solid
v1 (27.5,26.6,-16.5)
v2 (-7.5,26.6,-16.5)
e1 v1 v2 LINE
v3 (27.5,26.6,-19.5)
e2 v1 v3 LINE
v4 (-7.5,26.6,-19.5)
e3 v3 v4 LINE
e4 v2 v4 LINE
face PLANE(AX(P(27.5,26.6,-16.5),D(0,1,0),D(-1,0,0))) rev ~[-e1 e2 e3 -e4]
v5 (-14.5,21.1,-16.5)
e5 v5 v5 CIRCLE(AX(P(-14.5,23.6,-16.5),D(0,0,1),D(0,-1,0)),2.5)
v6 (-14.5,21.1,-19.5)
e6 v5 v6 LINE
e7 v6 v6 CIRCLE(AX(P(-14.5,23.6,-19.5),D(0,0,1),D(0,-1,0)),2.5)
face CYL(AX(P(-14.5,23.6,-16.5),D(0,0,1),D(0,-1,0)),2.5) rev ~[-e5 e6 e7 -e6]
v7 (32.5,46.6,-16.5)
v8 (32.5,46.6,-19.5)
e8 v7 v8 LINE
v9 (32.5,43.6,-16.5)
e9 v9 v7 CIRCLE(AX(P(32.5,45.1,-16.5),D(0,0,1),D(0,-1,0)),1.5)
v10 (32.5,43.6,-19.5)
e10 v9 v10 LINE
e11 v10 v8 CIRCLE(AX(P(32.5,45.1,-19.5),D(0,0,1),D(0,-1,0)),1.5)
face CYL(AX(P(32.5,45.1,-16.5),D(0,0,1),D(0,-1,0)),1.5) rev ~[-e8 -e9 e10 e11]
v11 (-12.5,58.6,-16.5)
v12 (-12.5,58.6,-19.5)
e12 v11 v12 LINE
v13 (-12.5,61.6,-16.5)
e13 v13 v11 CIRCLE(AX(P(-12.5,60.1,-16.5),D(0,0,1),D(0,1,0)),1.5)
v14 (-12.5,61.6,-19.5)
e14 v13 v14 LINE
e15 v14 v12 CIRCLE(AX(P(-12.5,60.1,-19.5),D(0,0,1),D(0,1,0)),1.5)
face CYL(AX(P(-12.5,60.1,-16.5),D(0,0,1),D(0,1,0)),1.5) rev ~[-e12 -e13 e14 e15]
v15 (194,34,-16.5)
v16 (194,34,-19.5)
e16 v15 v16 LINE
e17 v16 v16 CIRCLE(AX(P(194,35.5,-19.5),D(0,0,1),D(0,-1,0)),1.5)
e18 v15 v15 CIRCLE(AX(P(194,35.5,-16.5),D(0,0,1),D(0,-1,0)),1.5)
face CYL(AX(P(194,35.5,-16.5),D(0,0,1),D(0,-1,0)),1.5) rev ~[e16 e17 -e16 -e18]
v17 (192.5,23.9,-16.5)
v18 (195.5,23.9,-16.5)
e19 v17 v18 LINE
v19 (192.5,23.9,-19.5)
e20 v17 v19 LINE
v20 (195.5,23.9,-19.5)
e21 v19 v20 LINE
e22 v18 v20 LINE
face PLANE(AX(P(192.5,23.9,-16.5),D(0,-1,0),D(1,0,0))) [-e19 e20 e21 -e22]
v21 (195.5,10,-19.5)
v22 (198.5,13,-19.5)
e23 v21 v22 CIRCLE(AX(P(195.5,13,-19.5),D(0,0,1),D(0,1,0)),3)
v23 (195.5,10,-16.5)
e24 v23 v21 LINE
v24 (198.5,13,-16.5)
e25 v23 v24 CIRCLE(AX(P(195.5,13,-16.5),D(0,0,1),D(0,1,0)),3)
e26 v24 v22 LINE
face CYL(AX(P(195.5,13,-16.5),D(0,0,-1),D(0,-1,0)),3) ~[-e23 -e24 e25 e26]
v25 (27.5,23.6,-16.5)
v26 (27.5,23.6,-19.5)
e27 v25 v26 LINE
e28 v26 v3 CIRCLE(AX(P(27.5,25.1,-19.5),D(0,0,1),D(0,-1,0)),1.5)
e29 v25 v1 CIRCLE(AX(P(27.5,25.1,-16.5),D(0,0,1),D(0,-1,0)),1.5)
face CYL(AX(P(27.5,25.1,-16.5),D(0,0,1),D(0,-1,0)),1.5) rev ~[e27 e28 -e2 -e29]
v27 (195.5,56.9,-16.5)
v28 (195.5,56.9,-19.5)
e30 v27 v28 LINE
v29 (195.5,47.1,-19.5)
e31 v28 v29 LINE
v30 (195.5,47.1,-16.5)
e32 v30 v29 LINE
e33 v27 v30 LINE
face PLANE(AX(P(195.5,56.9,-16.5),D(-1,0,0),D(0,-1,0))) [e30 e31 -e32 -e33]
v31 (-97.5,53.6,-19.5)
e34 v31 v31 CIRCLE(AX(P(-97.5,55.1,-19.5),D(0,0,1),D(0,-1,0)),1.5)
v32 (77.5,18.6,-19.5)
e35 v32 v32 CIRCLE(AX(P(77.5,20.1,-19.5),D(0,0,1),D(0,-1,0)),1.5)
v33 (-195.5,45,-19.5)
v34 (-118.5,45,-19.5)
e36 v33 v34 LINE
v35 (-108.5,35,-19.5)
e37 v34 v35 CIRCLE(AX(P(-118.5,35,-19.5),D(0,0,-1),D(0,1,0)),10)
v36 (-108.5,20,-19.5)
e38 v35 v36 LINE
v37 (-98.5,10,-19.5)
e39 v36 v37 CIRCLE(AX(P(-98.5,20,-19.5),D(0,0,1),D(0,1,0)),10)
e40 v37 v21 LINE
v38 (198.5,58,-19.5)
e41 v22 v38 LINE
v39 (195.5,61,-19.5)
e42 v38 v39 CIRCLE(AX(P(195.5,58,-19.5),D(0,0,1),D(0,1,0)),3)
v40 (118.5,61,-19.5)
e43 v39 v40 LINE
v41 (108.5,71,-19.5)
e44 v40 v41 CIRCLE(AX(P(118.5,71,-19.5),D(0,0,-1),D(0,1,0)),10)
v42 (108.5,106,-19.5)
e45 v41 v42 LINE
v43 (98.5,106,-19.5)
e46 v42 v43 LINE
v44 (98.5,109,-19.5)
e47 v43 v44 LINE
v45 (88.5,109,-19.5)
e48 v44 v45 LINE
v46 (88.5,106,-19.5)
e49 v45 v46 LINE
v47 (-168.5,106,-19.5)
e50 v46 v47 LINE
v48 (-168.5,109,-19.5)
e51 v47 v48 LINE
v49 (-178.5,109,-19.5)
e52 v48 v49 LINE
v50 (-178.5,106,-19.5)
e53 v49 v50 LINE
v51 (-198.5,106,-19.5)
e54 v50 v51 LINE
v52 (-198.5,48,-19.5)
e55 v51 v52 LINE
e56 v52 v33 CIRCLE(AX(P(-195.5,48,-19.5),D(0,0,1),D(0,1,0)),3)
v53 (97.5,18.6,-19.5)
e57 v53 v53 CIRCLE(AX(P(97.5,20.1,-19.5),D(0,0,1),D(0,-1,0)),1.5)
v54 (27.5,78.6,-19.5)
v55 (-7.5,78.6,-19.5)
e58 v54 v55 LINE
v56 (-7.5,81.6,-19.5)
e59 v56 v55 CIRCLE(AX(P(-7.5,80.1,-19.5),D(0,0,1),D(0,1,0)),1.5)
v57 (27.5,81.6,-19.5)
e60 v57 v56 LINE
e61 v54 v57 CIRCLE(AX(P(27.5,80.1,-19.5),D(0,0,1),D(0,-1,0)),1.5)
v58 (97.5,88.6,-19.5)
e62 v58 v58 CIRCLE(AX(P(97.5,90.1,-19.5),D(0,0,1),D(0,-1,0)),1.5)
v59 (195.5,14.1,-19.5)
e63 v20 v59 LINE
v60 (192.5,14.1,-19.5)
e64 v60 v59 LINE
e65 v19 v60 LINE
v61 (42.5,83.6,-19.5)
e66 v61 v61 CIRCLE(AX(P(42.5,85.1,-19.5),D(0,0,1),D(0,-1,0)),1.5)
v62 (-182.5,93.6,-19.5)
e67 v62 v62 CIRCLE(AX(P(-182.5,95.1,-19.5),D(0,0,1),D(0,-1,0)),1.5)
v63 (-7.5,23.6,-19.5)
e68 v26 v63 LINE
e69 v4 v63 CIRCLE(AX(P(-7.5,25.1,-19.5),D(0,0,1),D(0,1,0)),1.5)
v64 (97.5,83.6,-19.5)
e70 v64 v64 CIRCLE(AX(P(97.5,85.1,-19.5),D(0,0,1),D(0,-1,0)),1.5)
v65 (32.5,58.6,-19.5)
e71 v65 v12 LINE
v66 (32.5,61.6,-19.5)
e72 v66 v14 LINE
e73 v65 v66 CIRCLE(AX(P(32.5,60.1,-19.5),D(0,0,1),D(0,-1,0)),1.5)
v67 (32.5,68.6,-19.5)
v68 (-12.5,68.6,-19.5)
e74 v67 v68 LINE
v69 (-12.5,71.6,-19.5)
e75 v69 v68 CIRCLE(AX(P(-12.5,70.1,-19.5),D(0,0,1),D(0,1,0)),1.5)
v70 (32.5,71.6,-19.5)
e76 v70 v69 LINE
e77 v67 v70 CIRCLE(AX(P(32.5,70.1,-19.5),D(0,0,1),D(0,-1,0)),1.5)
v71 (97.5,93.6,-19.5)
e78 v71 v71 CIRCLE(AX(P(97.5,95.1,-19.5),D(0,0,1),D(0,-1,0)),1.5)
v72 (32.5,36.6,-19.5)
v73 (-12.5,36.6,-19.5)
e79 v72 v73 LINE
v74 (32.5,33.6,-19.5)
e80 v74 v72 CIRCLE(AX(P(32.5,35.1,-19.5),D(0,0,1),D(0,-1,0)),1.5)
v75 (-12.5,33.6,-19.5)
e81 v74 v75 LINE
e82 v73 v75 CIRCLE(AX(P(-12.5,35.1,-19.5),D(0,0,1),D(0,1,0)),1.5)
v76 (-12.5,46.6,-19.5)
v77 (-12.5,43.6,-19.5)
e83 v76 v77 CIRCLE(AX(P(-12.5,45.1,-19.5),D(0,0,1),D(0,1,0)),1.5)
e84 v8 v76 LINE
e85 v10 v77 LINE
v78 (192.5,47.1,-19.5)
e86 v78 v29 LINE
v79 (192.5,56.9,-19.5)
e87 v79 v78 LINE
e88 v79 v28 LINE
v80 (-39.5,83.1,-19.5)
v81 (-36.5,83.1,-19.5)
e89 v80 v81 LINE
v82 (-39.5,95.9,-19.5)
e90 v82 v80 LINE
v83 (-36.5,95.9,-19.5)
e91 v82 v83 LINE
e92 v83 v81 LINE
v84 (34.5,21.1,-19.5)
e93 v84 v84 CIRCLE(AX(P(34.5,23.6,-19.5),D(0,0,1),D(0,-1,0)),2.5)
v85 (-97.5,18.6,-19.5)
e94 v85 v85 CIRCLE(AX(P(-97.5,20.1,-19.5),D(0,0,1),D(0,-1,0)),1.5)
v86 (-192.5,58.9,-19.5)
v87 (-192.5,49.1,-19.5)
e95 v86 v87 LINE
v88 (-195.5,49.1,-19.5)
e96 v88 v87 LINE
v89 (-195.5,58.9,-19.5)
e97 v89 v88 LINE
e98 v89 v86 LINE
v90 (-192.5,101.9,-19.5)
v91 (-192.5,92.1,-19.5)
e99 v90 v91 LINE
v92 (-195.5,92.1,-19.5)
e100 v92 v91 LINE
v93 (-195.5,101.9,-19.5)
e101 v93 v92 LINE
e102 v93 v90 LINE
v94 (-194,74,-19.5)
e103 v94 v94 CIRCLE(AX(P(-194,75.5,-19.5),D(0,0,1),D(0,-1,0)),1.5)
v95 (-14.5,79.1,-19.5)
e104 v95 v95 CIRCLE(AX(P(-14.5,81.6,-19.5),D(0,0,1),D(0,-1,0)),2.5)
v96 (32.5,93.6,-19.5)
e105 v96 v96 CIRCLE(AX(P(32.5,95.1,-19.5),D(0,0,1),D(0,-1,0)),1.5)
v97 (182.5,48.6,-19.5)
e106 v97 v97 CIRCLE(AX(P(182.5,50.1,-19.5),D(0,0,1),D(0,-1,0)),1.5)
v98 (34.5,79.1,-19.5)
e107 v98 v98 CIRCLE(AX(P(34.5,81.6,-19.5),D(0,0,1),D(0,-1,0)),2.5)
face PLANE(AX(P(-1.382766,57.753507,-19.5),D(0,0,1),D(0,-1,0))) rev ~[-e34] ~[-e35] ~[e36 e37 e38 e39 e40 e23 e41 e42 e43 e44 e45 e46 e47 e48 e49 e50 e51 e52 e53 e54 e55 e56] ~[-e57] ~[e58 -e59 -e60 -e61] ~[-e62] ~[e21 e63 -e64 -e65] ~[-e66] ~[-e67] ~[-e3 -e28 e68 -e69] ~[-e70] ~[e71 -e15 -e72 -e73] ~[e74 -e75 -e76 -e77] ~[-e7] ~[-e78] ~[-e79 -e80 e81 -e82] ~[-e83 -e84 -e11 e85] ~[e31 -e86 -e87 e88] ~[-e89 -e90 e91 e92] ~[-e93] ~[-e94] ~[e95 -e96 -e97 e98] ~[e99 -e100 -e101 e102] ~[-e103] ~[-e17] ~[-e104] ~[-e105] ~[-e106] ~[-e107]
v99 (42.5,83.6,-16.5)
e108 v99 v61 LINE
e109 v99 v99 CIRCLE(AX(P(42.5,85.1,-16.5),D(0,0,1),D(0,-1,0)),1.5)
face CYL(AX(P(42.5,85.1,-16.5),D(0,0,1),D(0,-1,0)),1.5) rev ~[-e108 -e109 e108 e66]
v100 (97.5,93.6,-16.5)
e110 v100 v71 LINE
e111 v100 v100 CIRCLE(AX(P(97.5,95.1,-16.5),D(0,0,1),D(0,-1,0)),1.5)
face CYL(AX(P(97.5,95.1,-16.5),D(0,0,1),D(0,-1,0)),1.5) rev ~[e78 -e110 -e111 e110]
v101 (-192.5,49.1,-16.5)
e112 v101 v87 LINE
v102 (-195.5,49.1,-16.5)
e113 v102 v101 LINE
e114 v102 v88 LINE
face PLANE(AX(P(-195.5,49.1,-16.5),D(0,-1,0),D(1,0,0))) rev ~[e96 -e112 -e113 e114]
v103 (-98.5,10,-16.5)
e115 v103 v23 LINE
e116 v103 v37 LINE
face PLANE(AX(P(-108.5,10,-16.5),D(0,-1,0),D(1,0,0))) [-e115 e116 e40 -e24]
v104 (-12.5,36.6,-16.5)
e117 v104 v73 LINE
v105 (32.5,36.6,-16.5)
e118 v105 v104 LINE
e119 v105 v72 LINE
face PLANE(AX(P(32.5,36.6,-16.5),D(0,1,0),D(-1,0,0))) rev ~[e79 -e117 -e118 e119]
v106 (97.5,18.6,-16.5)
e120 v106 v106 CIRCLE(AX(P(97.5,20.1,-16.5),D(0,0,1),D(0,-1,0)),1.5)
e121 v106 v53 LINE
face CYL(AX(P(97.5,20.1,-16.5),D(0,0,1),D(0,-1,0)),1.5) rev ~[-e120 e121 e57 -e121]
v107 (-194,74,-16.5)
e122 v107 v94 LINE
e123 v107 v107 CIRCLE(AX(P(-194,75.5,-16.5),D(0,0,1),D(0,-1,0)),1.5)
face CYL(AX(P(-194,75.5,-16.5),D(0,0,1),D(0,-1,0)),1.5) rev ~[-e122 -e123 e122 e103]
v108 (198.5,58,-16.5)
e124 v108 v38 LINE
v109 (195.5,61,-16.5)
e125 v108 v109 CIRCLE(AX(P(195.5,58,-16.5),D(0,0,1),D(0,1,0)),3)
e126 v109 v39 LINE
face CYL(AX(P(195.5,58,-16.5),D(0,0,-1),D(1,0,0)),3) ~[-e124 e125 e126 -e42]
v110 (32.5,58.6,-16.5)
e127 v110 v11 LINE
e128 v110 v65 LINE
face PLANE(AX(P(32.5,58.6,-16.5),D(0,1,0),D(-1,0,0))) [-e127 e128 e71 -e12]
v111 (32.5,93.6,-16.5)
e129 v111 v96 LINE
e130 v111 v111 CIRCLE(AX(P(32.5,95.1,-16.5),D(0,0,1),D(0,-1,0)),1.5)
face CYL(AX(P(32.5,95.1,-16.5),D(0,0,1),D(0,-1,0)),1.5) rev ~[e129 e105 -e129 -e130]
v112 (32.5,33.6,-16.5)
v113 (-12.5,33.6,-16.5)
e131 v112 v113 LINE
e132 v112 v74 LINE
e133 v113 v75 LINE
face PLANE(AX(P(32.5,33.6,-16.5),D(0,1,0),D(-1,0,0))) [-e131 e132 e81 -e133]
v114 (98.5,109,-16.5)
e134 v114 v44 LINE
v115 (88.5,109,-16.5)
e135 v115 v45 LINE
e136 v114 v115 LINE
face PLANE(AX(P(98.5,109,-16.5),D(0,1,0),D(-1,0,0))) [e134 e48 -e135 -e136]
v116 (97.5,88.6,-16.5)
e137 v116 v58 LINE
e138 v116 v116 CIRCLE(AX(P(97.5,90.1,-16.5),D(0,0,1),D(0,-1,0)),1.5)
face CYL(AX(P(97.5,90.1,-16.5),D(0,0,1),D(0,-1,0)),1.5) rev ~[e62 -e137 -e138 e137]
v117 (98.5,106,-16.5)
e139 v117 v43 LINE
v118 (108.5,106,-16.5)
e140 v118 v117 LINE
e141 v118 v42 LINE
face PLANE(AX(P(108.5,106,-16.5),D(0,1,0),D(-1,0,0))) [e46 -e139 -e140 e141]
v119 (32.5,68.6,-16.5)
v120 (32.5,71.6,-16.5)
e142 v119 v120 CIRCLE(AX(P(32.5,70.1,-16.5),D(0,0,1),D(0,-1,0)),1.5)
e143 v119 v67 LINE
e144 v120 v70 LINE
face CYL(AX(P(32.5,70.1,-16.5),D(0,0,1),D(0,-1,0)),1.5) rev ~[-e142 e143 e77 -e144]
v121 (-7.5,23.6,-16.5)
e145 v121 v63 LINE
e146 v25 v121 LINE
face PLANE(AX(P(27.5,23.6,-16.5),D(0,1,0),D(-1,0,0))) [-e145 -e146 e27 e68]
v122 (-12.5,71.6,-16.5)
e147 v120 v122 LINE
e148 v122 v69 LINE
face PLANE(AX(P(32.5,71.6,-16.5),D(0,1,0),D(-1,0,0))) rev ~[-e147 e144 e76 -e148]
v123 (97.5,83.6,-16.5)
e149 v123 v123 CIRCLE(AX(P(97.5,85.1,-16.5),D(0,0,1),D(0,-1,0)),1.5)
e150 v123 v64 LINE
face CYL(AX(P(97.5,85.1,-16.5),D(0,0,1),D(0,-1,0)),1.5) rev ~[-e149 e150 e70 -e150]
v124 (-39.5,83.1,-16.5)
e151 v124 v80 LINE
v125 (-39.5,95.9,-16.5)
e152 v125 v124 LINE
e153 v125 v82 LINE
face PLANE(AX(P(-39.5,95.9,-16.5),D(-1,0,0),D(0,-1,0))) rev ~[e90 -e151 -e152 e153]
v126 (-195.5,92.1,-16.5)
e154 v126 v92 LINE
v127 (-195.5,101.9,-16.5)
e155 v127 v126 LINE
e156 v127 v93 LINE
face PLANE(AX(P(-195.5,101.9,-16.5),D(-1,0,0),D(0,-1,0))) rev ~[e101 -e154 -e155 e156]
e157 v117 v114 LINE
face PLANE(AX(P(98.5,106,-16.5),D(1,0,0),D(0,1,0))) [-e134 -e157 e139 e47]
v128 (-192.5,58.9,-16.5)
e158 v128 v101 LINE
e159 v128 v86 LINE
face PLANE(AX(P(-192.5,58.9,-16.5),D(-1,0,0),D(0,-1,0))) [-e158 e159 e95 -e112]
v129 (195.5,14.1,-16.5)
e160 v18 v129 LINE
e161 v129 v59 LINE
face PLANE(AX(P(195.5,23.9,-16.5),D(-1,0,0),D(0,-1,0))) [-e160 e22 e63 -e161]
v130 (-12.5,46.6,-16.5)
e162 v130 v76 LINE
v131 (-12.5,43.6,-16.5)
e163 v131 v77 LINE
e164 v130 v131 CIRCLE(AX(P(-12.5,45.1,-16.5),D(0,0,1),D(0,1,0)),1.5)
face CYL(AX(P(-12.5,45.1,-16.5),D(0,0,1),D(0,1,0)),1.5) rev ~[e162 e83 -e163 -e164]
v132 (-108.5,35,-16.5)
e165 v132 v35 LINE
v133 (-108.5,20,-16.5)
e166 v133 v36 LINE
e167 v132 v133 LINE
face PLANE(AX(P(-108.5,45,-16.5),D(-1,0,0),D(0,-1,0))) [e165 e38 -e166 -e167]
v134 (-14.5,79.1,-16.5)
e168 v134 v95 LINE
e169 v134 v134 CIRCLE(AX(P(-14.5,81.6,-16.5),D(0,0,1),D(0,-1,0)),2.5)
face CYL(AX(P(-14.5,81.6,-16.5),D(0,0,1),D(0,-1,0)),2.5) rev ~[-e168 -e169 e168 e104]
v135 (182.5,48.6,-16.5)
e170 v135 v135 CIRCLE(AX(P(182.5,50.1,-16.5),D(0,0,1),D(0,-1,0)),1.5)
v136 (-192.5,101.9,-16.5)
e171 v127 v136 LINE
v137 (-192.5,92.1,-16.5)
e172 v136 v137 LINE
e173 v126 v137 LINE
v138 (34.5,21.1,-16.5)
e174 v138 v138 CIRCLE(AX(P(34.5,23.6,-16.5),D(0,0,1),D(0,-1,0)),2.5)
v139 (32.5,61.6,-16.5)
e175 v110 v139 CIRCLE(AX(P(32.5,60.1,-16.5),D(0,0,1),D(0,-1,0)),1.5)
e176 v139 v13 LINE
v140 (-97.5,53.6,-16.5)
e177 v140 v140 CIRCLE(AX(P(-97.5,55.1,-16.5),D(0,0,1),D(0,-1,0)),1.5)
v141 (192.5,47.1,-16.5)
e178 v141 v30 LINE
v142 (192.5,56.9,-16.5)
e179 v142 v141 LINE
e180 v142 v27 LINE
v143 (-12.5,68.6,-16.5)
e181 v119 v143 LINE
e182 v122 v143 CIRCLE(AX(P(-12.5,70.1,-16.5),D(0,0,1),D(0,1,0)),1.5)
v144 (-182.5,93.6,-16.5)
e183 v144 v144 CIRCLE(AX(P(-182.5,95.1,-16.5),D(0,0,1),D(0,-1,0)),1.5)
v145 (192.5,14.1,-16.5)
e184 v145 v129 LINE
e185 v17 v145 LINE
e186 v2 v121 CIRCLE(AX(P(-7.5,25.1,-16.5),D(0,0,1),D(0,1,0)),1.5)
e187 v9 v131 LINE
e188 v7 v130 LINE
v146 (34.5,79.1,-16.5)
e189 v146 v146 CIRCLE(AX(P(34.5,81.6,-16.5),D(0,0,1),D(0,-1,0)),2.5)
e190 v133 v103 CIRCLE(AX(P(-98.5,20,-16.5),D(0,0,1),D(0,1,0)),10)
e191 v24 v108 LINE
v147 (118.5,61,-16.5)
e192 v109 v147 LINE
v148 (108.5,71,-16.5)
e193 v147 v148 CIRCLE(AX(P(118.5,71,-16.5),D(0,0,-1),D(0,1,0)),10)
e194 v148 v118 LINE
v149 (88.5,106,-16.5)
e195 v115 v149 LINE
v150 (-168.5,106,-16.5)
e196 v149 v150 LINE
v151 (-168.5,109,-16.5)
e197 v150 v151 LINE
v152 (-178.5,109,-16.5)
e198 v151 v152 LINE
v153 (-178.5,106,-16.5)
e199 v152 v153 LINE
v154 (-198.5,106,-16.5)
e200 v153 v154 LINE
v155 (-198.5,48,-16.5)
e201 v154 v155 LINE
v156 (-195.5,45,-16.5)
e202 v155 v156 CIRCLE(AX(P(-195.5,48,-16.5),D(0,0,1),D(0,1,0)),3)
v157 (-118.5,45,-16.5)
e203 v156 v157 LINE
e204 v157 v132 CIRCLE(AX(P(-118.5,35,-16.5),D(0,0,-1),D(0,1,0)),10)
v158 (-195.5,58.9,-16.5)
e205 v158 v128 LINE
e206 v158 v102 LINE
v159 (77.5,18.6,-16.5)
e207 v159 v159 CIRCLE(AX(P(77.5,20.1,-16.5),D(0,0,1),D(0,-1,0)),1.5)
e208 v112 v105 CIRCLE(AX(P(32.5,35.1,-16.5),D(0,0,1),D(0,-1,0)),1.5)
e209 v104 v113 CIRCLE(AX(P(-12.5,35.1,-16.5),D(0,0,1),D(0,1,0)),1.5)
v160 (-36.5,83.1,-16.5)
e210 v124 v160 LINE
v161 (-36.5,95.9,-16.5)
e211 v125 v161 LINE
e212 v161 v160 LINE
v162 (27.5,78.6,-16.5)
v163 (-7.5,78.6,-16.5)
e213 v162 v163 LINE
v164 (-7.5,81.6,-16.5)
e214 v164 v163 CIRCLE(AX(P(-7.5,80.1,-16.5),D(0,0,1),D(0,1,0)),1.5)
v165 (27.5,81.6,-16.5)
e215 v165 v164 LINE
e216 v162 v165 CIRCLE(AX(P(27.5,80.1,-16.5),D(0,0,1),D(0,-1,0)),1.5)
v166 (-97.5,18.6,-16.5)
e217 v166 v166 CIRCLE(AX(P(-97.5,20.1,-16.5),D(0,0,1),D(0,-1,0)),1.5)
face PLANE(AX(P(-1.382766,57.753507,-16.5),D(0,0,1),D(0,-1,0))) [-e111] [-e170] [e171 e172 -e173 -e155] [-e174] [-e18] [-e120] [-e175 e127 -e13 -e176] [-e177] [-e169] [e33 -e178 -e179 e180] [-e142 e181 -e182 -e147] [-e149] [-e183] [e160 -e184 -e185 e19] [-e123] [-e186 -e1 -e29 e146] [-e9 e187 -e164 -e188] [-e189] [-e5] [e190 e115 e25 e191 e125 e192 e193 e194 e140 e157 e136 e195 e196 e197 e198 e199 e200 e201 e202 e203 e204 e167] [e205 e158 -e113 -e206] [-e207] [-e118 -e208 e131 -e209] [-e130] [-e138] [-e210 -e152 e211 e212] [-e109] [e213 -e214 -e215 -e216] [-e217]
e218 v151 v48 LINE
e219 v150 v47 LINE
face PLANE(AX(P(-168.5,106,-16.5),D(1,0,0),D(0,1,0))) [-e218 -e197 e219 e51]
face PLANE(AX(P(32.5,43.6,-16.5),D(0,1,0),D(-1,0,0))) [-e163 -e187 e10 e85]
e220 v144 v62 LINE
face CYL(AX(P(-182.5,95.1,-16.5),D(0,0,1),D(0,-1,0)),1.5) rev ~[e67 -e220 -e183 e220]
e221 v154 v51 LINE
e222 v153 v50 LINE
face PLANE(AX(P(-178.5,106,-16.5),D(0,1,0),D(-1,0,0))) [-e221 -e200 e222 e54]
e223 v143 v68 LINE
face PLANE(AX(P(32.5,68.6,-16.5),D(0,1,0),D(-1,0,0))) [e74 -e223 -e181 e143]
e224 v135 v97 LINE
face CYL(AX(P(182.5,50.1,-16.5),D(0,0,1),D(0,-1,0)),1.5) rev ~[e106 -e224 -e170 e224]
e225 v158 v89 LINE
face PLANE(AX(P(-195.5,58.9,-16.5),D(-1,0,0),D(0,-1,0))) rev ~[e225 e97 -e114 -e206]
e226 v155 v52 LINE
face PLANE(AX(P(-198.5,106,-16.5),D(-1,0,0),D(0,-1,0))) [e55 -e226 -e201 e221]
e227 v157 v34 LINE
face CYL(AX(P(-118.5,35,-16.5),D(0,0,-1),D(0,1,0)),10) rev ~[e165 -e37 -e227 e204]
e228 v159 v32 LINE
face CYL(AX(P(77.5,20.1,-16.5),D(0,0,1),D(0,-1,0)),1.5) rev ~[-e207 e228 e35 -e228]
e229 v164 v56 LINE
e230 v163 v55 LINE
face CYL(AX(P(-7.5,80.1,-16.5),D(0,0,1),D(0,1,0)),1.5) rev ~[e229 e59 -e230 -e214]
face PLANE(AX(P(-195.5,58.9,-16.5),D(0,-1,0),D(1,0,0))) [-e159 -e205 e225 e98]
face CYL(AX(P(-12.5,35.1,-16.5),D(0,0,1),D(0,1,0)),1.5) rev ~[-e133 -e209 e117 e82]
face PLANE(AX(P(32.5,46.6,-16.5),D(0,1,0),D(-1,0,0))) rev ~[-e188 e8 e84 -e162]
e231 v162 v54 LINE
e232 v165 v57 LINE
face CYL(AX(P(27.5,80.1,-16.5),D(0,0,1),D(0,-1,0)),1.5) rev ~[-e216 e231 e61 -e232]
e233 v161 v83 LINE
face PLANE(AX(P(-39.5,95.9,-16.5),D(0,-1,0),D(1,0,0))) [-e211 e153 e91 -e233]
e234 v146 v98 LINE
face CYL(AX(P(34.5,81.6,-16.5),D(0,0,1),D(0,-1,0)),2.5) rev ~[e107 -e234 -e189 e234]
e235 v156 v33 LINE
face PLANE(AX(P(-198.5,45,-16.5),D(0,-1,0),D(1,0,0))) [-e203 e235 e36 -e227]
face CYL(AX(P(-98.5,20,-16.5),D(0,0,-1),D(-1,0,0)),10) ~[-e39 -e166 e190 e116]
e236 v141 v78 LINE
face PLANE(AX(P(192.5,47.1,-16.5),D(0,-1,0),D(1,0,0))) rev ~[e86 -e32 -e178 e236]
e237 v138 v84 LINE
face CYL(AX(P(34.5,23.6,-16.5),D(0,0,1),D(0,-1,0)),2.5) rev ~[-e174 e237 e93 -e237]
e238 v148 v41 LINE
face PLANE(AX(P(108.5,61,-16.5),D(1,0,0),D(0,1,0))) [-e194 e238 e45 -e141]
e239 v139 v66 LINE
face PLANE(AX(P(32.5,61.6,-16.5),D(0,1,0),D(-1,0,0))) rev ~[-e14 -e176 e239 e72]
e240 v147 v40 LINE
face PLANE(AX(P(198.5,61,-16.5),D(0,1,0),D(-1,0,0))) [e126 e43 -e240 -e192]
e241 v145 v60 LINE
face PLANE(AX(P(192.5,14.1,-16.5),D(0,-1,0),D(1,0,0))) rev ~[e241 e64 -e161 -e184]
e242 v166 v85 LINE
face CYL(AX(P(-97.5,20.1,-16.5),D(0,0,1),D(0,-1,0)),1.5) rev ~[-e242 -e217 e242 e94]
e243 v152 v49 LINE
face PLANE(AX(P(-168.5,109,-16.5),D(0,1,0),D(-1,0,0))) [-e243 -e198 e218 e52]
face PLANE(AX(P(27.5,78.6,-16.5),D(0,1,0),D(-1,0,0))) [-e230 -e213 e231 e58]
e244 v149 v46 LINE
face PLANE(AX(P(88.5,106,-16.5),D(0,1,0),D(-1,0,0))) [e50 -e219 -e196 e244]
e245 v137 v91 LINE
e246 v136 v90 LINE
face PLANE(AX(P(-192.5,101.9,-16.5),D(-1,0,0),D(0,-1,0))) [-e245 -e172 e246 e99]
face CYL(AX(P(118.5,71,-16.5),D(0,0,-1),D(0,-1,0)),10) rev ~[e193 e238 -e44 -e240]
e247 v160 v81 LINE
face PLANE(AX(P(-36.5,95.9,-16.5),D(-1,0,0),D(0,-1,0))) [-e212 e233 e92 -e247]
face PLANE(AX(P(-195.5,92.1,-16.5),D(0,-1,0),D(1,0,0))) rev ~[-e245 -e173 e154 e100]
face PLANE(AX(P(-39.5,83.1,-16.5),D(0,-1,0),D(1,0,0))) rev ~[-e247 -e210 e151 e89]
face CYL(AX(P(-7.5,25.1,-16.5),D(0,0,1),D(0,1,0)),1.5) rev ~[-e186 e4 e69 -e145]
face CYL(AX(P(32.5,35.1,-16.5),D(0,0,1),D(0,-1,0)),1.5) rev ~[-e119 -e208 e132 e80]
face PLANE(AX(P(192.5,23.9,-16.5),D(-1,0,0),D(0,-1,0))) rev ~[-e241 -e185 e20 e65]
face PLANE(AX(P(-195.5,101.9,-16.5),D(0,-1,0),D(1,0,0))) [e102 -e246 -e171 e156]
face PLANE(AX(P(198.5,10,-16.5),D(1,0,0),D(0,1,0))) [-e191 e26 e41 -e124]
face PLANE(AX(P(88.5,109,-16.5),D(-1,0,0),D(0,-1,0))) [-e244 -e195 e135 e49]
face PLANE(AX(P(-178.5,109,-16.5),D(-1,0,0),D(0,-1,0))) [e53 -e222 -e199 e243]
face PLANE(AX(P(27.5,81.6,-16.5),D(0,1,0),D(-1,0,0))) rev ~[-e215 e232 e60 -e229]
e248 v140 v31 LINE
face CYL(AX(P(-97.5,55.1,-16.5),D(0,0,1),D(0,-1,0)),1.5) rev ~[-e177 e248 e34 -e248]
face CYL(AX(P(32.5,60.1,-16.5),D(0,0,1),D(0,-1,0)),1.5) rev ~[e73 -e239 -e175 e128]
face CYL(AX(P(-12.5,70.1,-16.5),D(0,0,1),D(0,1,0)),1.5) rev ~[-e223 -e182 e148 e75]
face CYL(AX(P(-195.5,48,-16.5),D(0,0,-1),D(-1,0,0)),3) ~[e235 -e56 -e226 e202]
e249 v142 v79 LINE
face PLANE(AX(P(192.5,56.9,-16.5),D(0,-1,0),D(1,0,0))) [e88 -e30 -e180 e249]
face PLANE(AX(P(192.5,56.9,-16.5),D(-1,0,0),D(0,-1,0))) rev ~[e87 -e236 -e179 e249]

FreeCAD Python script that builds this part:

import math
import FreeCAD as App
import Part
import Sketcher
from FreeCAD import Vector
Q = App.Units.Quantity


def edges_at(feature, points):
    """Names of the edges that pass closest to the given points."""
    edges = feature.Shape.Edges
    near = lambda p: min(range(len(edges)), key=lambda i: edges[i].distToShape(Part.Vertex(*p))[0])
    return sorted({f"Edge{near(p) + 1}" for p in points})

doc = App.newDocument("Part")
body = doc.addObject("PartDesign::Body", "Body")

sketch1 = body.newObject("Sketcher::SketchObject", "Sketch")
sketch1.AttachmentSupport = (doc.getObject("XY_Plane"), [""])
sketch1.MapMode = "FlatFace"
sketch1.AttachmentOffset = App.Placement(Vector(0, 0, -16.5), App.Rotation())
sketch1.addGeometry(Part.LineSegment(Vector(-198.5, 106, 0), Vector(-198.5, 45, 0)), False)
sketch1.addGeometry(Part.LineSegment(Vector(-198.5, 45, 0), Vector(-108.5, 45, 0)), False)
sketch1.addGeometry(Part.LineSegment(Vector(-108.5, 45, 0), Vector(-108.5, 10, 0)), False)
sketch1.addGeometry(Part.LineSegment(Vector(-108.5, 10, 0), Vector(198.5, 10, 0)), False)
sketch1.addGeometry(Part.LineSegment(Vector(198.5, 10, 0), Vector(198.5, 61, 0)), False)
sketch1.addGeometry(Part.LineSegment(Vector(198.5, 61, 0), Vector(108.5, 61, 0)), False)
sketch1.addGeometry(Part.LineSegment(Vector(108.5, 61, 0), Vector(108.5, 106, 0)), False)
sketch1.addGeometry(Part.LineSegment(Vector(108.5, 106, 0), Vector(98.5, 106, 0)), False)
sketch1.addGeometry(Part.LineSegment(Vector(98.5, 106, 0), Vector(98.5, 109, 0)), False)
sketch1.addGeometry(Part.LineSegment(Vector(98.5, 109, 0), Vector(88.5, 109, 0)), False)
sketch1.addGeometry(Part.LineSegment(Vector(88.5, 109, 0), Vector(88.5, 106, 0)), False)
sketch1.addGeometry(Part.LineSegment(Vector(88.5, 106, 0), Vector(-168.5, 106, 0)), False)
sketch1.addGeometry(Part.LineSegment(Vector(-168.5, 106, 0), Vector(-168.5, 109, 0)), False)
sketch1.addGeometry(Part.LineSegment(Vector(-168.5, 109, 0), Vector(-178.5, 109, 0)), False)
sketch1.addGeometry(Part.LineSegment(Vector(-178.5, 109, 0), Vector(-178.5, 106, 0)), False)
sketch1.addGeometry(Part.LineSegment(Vector(-178.5, 106, 0), Vector(-198.5, 106, 0)), False)
sketch1.addGeometry(Part.LineSegment(Vector(-195.5, 92.1, 0), Vector(-195.5, 101.9, 0)), False)
sketch1.addGeometry(Part.LineSegment(Vector(-195.5, 101.9, 0), Vector(-192.5, 101.9, 0)), False)
sketch1.addGeometry(Part.LineSegment(Vector(-192.5, 101.9, 0), Vector(-192.5, 92.1, 0)), False)
sketch1.addGeometry(Part.LineSegment(Vector(-192.5, 92.1, 0), Vector(-195.5, 92.1, 0)), False)
sketch1.addGeometry(Part.Circle(Vector(-182.5, 95.1, 0), Vector(0, 0, 1), 1.5), False)
sketch1.addGeometry(Part.Circle(Vector(-194, 75.5, 0), Vector(0, 0, 1), 1.5), False)
sketch1.addGeometry(Part.LineSegment(Vector(-39.5, 83.1, 0), Vector(-39.5, 95.9, 0)), False)
sketch1.addGeometry(Part.LineSegment(Vector(-39.5, 95.9, 0), Vector(-36.5, 95.9, 0)), False)
sketch1.addGeometry(Part.LineSegment(Vector(-36.5, 95.9, 0), Vector(-36.5, 83.1, 0)), False)
sketch1.addGeometry(Part.LineSegment(Vector(-36.5, 83.1, 0), Vector(-39.5, 83.1, 0)), False)
sketch1.addGeometry(Part.Circle(Vector(-14.5, 81.6, 0), Vector(0, 0, 1), 2.5), False)
sketch1.addGeometry(Part.LineSegment(Vector(-195.5, 49.1, 0), Vector(-195.5, 58.9, 0)), False)
sketch1.addGeometry(Part.LineSegment(Vector(-195.5, 58.9, 0), Vector(-192.5, 58.9, 0)), False)
sketch1.addGeometry(Part.LineSegment(Vector(-192.5, 58.9, 0), Vector(-192.5, 49.1, 0)), False)
sketch1.addGeometry(Part.LineSegment(Vector(-192.5, 49.1, 0), Vector(-195.5, 49.1, 0)), False)
sketch1.addGeometry(Part.Circle(Vector(-97.5, 55.1, 0), Vector(0, 0, 1), 1.5), False)
sketch1.addGeometry(Part.Circle(Vector(-97.5, 20.1, 0), Vector(0, 0, 1), 1.5), False)
sketch1.addGeometry(Part.Circle(Vector(-14.5, 23.6, 0), Vector(0, 0, 1), 2.5), False)
sketch1.addGeometry(Part.Circle(Vector(32.5, 95.1, 0), Vector(0, 0, 1), 1.5), False)
sketch1.addGeometry(Part.ArcOfCircle(Part.Circle(Vector(27.5, 80.1, 0), Vector(0, 0, 1), 1.5), math.radians(-90), math.radians(90)), False)
sketch1.addGeometry(Part.LineSegment(Vector(27.5, 78.6, 0), Vector(-7.5, 78.6, 0)), False)
sketch1.addGeometry(Part.ArcOfCircle(Part.Circle(Vector(-7.5, 80.1, 0), Vector(0, 0, 1), 1.5), math.radians(90), math.radians(270)), False)
sketch1.addGeometry(Part.LineSegment(Vector(-7.5, 81.6, 0), Vector(27.5, 81.6, 0)), False)
sketch1.addGeometry(Part.Circle(Vector(34.5, 81.6, 0), Vector(0, 0, 1), 2.5), False)
sketch1.addGeometry(Part.Circle(Vector(42.5, 85.1, 0), Vector(0, 0, 1), 1.5), False)
sketch1.addGeometry(Part.Circle(Vector(97.5, 95.1, 0), Vector(0, 0, 1), 1.5), False)
sketch1.addGeometry(Part.Circle(Vector(97.5, 90.1, 0), Vector(0, 0, 1), 1.5), False)
sketch1.addGeometry(Part.Circle(Vector(97.5, 85.1, 0), Vector(0, 0, 1), 1.5), False)
sketch1.addGeometry(Part.ArcOfCircle(Part.Circle(Vector(32.5, 70.1, 0), Vector(0, 0, 1), 1.5), math.radians(-90), math.radians(90)), False)
sketch1.addGeometry(Part.LineSegment(Vector(32.5, 68.6, 0), Vector(-12.5, 68.6, 0)), False)
sketch1.addGeometry(Part.ArcOfCircle(Part.Circle(Vector(-12.5, 70.1, 0), Vector(0, 0, 1), 1.5), math.radians(90), math.radians(270)), False)
sketch1.addGeometry(Part.LineSegment(Vector(-12.5, 71.6, 0), Vector(32.5, 71.6, 0)), False)
sketch1.addGeometry(Part.ArcOfCircle(Part.Circle(Vector(32.5, 60.1, 0), Vector(0, 0, 1), 1.5), math.radians(-90), math.radians(90)), False)
sketch1.addGeometry(Part.LineSegment(Vector(32.5, 58.6, 0), Vector(-12.5, 58.6, 0)), False)
sketch1.addGeometry(Part.ArcOfCircle(Part.Circle(Vector(-12.5, 60.1, 0), Vector(0, 0, 1), 1.5), math.radians(90), math.radians(270)), False)
sketch1.addGeometry(Part.LineSegment(Vector(-12.5, 61.6, 0), Vector(32.5, 61.6, 0)), False)
sketch1.addGeometry(Part.ArcOfCircle(Part.Circle(Vector(32.5, 45.1, 0), Vector(0, 0, 1), 1.5), math.radians(-90), math.radians(90)), False)
sketch1.addGeometry(Part.LineSegment(Vector(32.5, 43.6, 0), Vector(-12.5, 43.6, 0)), False)
sketch1.addGeometry(Part.ArcOfCircle(Part.Circle(Vector(-12.5, 45.1, 0), Vector(0, 0, 1), 1.5), math.radians(90), math.radians(270)), False)
sketch1.addGeometry(Part.LineSegment(Vector(-12.5, 46.6, 0), Vector(32.5, 46.6, 0)), False)
sketch1.addGeometry(Part.ArcOfCircle(Part.Circle(Vector(32.5, 35.1, 0), Vector(0, 0, 1), 1.5), math.radians(-90), math.radians(90)), False)
sketch1.addGeometry(Part.LineSegment(Vector(32.5, 33.6, 0), Vector(-12.5, 33.6, 0)), False)
sketch1.addGeometry(Part.ArcOfCircle(Part.Circle(Vector(-12.5, 35.1, 0), Vector(0, 0, 1), 1.5), math.radians(90), math.radians(270)), False)
sketch1.addGeometry(Part.LineSegment(Vector(-12.5, 36.6, 0), Vector(32.5, 36.6, 0)), False)
sketch1.addGeometry(Part.ArcOfCircle(Part.Circle(Vector(27.5, 25.1, 0), Vector(0, 0, 1), 1.5), math.radians(-90), math.radians(90)), False)
sketch1.addGeometry(Part.LineSegment(Vector(27.5, 23.6, 0), Vector(-7.5, 23.6, 0)), False)
sketch1.addGeometry(Part.ArcOfCircle(Part.Circle(Vector(-7.5, 25.1, 0), Vector(0, 0, 1), 1.5), math.radians(90), math.radians(270)), False)
sketch1.addGeometry(Part.LineSegment(Vector(-7.5, 26.6, 0), Vector(27.5, 26.6, 0)), False)
sketch1.addGeometry(Part.Circle(Vector(34.5, 23.6, 0), Vector(0, 0, 1), 2.5), False)
sketch1.addGeometry(Part.Circle(Vector(77.5, 20.1, 0), Vector(0, 0, 1), 1.5), False)
sketch1.addGeometry(Part.Circle(Vector(97.5, 20.1, 0), Vector(0, 0, 1), 1.5), False)
sketch1.addGeometry(Part.Circle(Vector(182.5, 50.1, 0), Vector(0, 0, 1), 1.5), False)
sketch1.addGeometry(Part.LineSegment(Vector(192.5, 47.1, 0), Vector(192.5, 56.9, 0)), False)
sketch1.addGeometry(Part.LineSegment(Vector(192.5, 56.9, 0), Vector(195.5, 56.9, 0)), False)
sketch1.addGeometry(Part.LineSegment(Vector(195.5, 56.9, 0), Vector(195.5, 47.1, 0)), False)
sketch1.addGeometry(Part.LineSegment(Vector(195.5, 47.1, 0), Vector(192.5, 47.1, 0)), False)
sketch1.addGeometry(Part.Circle(Vector(194, 35.5, 0), Vector(0, 0, 1), 1.5), False)
sketch1.addGeometry(Part.LineSegment(Vector(192.5, 14.1, 0), Vector(192.5, 23.9, 0)), False)
sketch1.addGeometry(Part.LineSegment(Vector(192.5, 23.9, 0), Vector(195.5, 23.9, 0)), False)
sketch1.addGeometry(Part.LineSegment(Vector(195.5, 23.9, 0), Vector(195.5, 14.1, 0)), False)
sketch1.addGeometry(Part.LineSegment(Vector(195.5, 14.1, 0), Vector(192.5, 14.1, 0)), False)
sketch1.addConstraint(Sketcher.Constraint("Coincident", 0, 2, 1, 1))
sketch1.addConstraint(Sketcher.Constraint("Coincident", 1, 2, 2, 1))
sketch1.addConstraint(Sketcher.Constraint("Coincident", 2, 2, 3, 1))
sketch1.addConstraint(Sketcher.Constraint("Coincident", 3, 2, 4, 1))
sketch1.addConstraint(Sketcher.Constraint("Coincident", 4, 2, 5, 1))
sketch1.addConstraint(Sketcher.Constraint("Coincident", 5, 2, 6, 1))
sketch1.addConstraint(Sketcher.Constraint("Coincident", 6, 2, 7, 1))
sketch1.addConstraint(Sketcher.Constraint("Coincident", 7, 2, 8, 1))
sketch1.addConstraint(Sketcher.Constraint("Coincident", 8, 2, 9, 1))
sketch1.addConstraint(Sketcher.Constraint("Coincident", 9, 2, 10, 1))
sketch1.addConstraint(Sketcher.Constraint("Coincident", 10, 2, 11, 1))
sketch1.addConstraint(Sketcher.Constraint("Coincident", 11, 2, 12, 1))
sketch1.addConstraint(Sketcher.Constraint("Coincident", 12, 2, 13, 1))
sketch1.addConstraint(Sketcher.Constraint("Coincident", 13, 2, 14, 1))
sketch1.addConstraint(Sketcher.Constraint("Coincident", 14, 2, 15, 1))
sketch1.addConstraint(Sketcher.Constraint("Coincident", 15, 2, 0, 1))
sketch1.addConstraint(Sketcher.Constraint("Coincident", 16, 2, 17, 1))
sketch1.addConstraint(Sketcher.Constraint("Coincident", 17, 2, 18, 1))
sketch1.addConstraint(Sketcher.Constraint("Coincident", 18, 2, 19, 1))
sketch1.addConstraint(Sketcher.Constraint("Coincident", 19, 2, 16, 1))
sketch1.addConstraint(Sketcher.Constraint("Coincident", 22, 2, 23, 1))
sketch1.addConstraint(Sketcher.Constraint("Coincident", 23, 2, 24, 1))
sketch1.addConstraint(Sketcher.Constraint("Coincident", 24, 2, 25, 1))
sketch1.addConstraint(Sketcher.Constraint("Coincident", 25, 2, 22, 1))
sketch1.addConstraint(Sketcher.Constraint("Coincident", 27, 2, 28, 1))
sketch1.addConstraint(Sketcher.Constraint("Coincident", 28, 2, 29, 1))
sketch1.addConstraint(Sketcher.Constraint("Coincident", 29, 2, 30, 1))
sketch1.addConstraint(Sketcher.Constraint("Coincident", 30, 2, 27, 1))
sketch1.addConstraint(Sketcher.Constraint("Tangent", 35, 1, 36, 1))
sketch1.addConstraint(Sketcher.Constraint("Tangent", 36, 2, 37, 2))
sketch1.addConstraint(Sketcher.Constraint("Tangent", 37, 1, 38, 1))
sketch1.addConstraint(Sketcher.Constraint("Tangent", 38, 2, 35, 2))
sketch1.addConstraint(Sketcher.Constraint("Tangent", 44, 1, 45, 1))
sketch1.addConstraint(Sketcher.Constraint("Tangent", 45, 2, 46, 2))
sketch1.addConstraint(Sketcher.Constraint("Tangent", 46, 1, 47, 1))
sketch1.addConstraint(Sketcher.Constraint("Tangent", 47, 2, 44, 2))
sketch1.addConstraint(Sketcher.Constraint("Tangent", 48, 1, 49, 1))
sketch1.addConstraint(Sketcher.Constraint("Tangent", 49, 2, 50, 2))
sketch1.addConstraint(Sketcher.Constraint("Tangent", 50, 1, 51, 1))
sketch1.addConstraint(Sketcher.Constraint("Tangent", 51, 2, 48, 2))
sketch1.addConstraint(Sketcher.Constraint("Tangent", 52, 1, 53, 1))
sketch1.addConstraint(Sketcher.Constraint("Tangent", 53, 2, 54, 2))
sketch1.addConstraint(Sketcher.Constraint("Tangent", 54, 1, 55, 1))
sketch1.addConstraint(Sketcher.Constraint("Tangent", 55, 2, 52, 2))
sketch1.addConstraint(Sketcher.Constraint("Tangent", 56, 1, 57, 1))
sketch1.addConstraint(Sketcher.Constraint("Tangent", 57, 2, 58, 2))
sketch1.addConstraint(Sketcher.Constraint("Tangent", 58, 1, 59, 1))
sketch1.addConstraint(Sketcher.Constraint("Tangent", 59, 2, 56, 2))
sketch1.addConstraint(Sketcher.Constraint("Tangent", 60, 1, 61, 1))
sketch1.addConstraint(Sketcher.Constraint("Tangent", 61, 2, 62, 2))
sketch1.addConstraint(Sketcher.Constraint("Tangent", 62, 1, 63, 1))
sketch1.addConstraint(Sketcher.Constraint("Tangent", 63, 2, 60, 2))
sketch1.addConstraint(Sketcher.Constraint("Coincident", 68, 2, 69, 1))
sketch1.addConstraint(Sketcher.Constraint("Coincident", 69, 2, 70, 1))
sketch1.addConstraint(Sketcher.Constraint("Coincident", 70, 2, 71, 1))
sketch1.addConstraint(Sketcher.Constraint("Coincident", 71, 2, 68, 1))
sketch1.addConstraint(Sketcher.Constraint("Coincident", 73, 2, 74, 1))
sketch1.addConstraint(Sketcher.Constraint("Coincident", 74, 2, 75, 1))
sketch1.addConstraint(Sketcher.Constraint("Coincident", 75, 2, 76, 1))
sketch1.addConstraint(Sketcher.Constraint("Coincident", 76, 2, 73, 1))
sketch1.addConstraint(Sketcher.Constraint("Vertical", 0))
sketch1.addConstraint(Sketcher.Constraint("Horizontal", 1))
sketch1.addConstraint(Sketcher.Constraint("Vertical", 2))
sketch1.addConstraint(Sketcher.Constraint("Horizontal", 3))
sketch1.addConstraint(Sketcher.Constraint("Vertical", 4))
sketch1.addConstraint(Sketcher.Constraint("Horizontal", 5))
sketch1.addConstraint(Sketcher.Constraint("Vertical", 6))
sketch1.addConstraint(Sketcher.Constraint("Horizontal", 7))
sketch1.addConstraint(Sketcher.Constraint("Vertical", 8))
sketch1.addConstraint(Sketcher.Constraint("Horizontal", 9))
sketch1.addConstraint(Sketcher.Constraint("Vertical", 10))
sketch1.addConstraint(Sketcher.Constraint("Horizontal", 11))
sketch1.addConstraint(Sketcher.Constraint("Vertical", 12))
sketch1.addConstraint(Sketcher.Constraint("Horizontal", 13))
sketch1.addConstraint(Sketcher.Constraint("Vertical", 14))
sketch1.addConstraint(Sketcher.Constraint("Horizontal", 15))
sketch1.addConstraint(Sketcher.Constraint("Vertical", 16))
sketch1.addConstraint(Sketcher.Constraint("Horizontal", 17))
sketch1.addConstraint(Sketcher.Constraint("Vertical", 18))
sketch1.addConstraint(Sketcher.Constraint("Horizontal", 19))
sketch1.addConstraint(Sketcher.Constraint("Vertical", 22))
sketch1.addConstraint(Sketcher.Constraint("Horizontal", 23))
sketch1.addConstraint(Sketcher.Constraint("Vertical", 24))
sketch1.addConstraint(Sketcher.Constraint("Horizontal", 25))
sketch1.addConstraint(Sketcher.Constraint("Vertical", 27))
sketch1.addConstraint(Sketcher.Constraint("Horizontal", 28))
sketch1.addConstraint(Sketcher.Constraint("Vertical", 29))
sketch1.addConstraint(Sketcher.Constraint("Horizontal", 30))
sketch1.addConstraint(Sketcher.Constraint("Horizontal", 36))
sketch1.addConstraint(Sketcher.Constraint("Horizontal", 38))
sketch1.addConstraint(Sketcher.Constraint("Horizontal", 45))
sketch1.addConstraint(Sketcher.Constraint("Horizontal", 47))
sketch1.addConstraint(Sketcher.Constraint("Horizontal", 49))
sketch1.addConstraint(Sketcher.Constraint("Horizontal", 51))
sketch1.addConstraint(Sketcher.Constraint("Horizontal", 53))
sketch1.addConstraint(Sketcher.Constraint("Horizontal", 55))
sketch1.addConstraint(Sketcher.Constraint("Horizontal", 57))
sketch1.addConstraint(Sketcher.Constraint("Horizontal", 59))
sketch1.addConstraint(Sketcher.Constraint("Horizontal", 61))
sketch1.addConstraint(Sketcher.Constraint("Horizontal", 63))
sketch1.addConstraint(Sketcher.Constraint("Vertical", 68))
sketch1.addConstraint(Sketcher.Constraint("Horizontal", 69))
sketch1.addConstraint(Sketcher.Constraint("Vertical", 70))
sketch1.addConstraint(Sketcher.Constraint("Horizontal", 71))
sketch1.addConstraint(Sketcher.Constraint("Vertical", 73))
sketch1.addConstraint(Sketcher.Constraint("Horizontal", 74))
sketch1.addConstraint(Sketcher.Constraint("Vertical", 75))
sketch1.addConstraint(Sketcher.Constraint("Horizontal", 76))
sketch1.addConstraint(Sketcher.Constraint("Equal", 20, 21))
sketch1.addConstraint(Sketcher.Constraint("Equal", 21, 31))
sketch1.addConstraint(Sketcher.Constraint("Equal", 31, 32))
sketch1.addConstraint(Sketcher.Constraint("Equal", 26, 33))
sketch1.addConstraint(Sketcher.Constraint("Equal", 32, 34))
sketch1.addConstraint(Sketcher.Constraint("Equal", 34, 35))
sketch1.addConstraint(Sketcher.Constraint("Equal", 33, 39))
sketch1.addConstraint(Sketcher.Constraint("Equal", 37, 40))
sketch1.addConstraint(Sketcher.Constraint("Equal", 40, 41))
sketch1.addConstraint(Sketcher.Constraint("Equal", 41, 42))
sketch1.addConstraint(Sketcher.Constraint("Equal", 42, 43))
sketch1.addConstraint(Sketcher.Constraint("Equal", 43, 44))
sketch1.addConstraint(Sketcher.Constraint("Equal", 46, 48))
sketch1.addConstraint(Sketcher.Constraint("Equal", 50, 52))
sketch1.addConstraint(Sketcher.Constraint("Equal", 54, 56))
sketch1.addConstraint(Sketcher.Constraint("Equal", 58, 60))
sketch1.addConstraint(Sketcher.Constraint("Equal", 39, 64))
sketch1.addConstraint(Sketcher.Constraint("Equal", 62, 65))
sketch1.addConstraint(Sketcher.Constraint("Equal", 65, 66))
sketch1.addConstraint(Sketcher.Constraint("Equal", 66, 67))
sketch1.addConstraint(Sketcher.Constraint("Equal", 67, 72))
sketch1.addConstraint(Sketcher.Constraint("Symmetric", 32, 3, 66, 3, -2))
sketch1.addConstraint(Sketcher.Constraint("Horizontal", 20, 3, 34, 3))
sketch1.addConstraint(Sketcher.Constraint("Horizontal", 26, 3, 39, 3))
sketch1.addConstraint(Sketcher.Constraint("Horizontal", 34, 3, 41, 3))
sketch1.addConstraint(Sketcher.Constraint("Horizontal", 40, 3, 43, 3))
sketch1.addConstraint(Sketcher.Constraint("Horizontal", 33, 3, 64, 3))
sketch1.addConstraint(Sketcher.Constraint("Horizontal", 32, 3, 65, 3))
sketch1.addConstraint(Sketcher.Constraint("Horizontal", 7, 2, 10, 2))
sketch1.addConstraint(Sketcher.Constraint("Horizontal", 9, 2, 12, 2))
sketch1.addConstraint(Sketcher.Constraint("Horizontal", 11, 2, 14, 2))
sketch1.addConstraint(Sketcher.Constraint("Horizontal", 39, 3, 37, 1))
sketch1.addConstraint(Sketcher.Constraint("Horizontal", 64, 3, 60, 1))
sketch1.addConstraint(Sketcher.Constraint("Vertical", 31, 3, 32, 3))
sketch1.addConstraint(Sketcher.Constraint("Vertical", 26, 3, 33, 3))
sketch1.addConstraint(Sketcher.Constraint("Vertical", 41, 3, 42, 3))
sketch1.addConstraint(Sketcher.Constraint("Vertical", 42, 3, 43, 3))
sketch1.addConstraint(Sketcher.Constraint("Vertical", 34, 3, 44, 3))
sketch1.addConstraint(Sketcher.Constraint("Vertical", 44, 3, 48, 3))
sketch1.addConstraint(Sketcher.Constraint("Vertical", 46, 3, 50, 3))
sketch1.addConstraint(Sketcher.Constraint("Vertical", 48, 3, 52, 3))
sketch1.addConstraint(Sketcher.Constraint("Vertical", 50, 3, 54, 3))
sketch1.addConstraint(Sketcher.Constraint("Vertical", 52, 3, 56, 3))
sketch1.addConstraint(Sketcher.Constraint("Vertical", 54, 3, 58, 3))
sketch1.addConstraint(Sketcher.Constraint("Vertical", 35, 3, 60, 3))
sketch1.addConstraint(Sketcher.Constraint("Vertical", 37, 3, 62, 3))
sketch1.addConstraint(Sketcher.Constraint("Vertical", 39, 3, 64, 3))
sketch1.addConstraint(Sketcher.Constraint("Vertical", 43, 3, 66, 3))
sketch1.addConstraint(Sketcher.Constraint("Vertical", 19, 2, 27, 2))
sketch1.addConstraint(Sketcher.Constraint("Vertical", 18, 2, 28, 2))
sketch1.addConstraint(Sketcher.Constraint("Vertical", 71, 2, 73, 2))
sketch1.addConstraint(Sketcher.Constraint("Vertical", 70, 2, 74, 2))
sketch1.addConstraint(Sketcher.Constraint("Equal", 1, 5))
sketch1.addConstraint(Sketcher.Constraint("Equal", 7, 9))
sketch1.addConstraint(Sketcher.Constraint("Equal", 9, 13))
sketch1.addConstraint(Sketcher.Constraint("Equal", 19, 23))
sketch1.addConstraint(Sketcher.Constraint("Equal", 30, 69))
sketch1.addConstraint(Sketcher.Constraint("Equal", 63, 2))
sketch1.addConstraint(Sketcher.Constraint("Equal", 59, 6))
sketch1.addConstraint(Sketcher.Constraint("Equal", 76, 8))
sketch1.addConstraint(Sketcher.Constraint("Equal", 18, 27))
sketch1.addConstraint(Sketcher.Constraint("Equal", 29, 68))
sketch1.addConstraint(Sketcher.Constraint("Equal", 70, 73))
sketch1.addConstraint(Sketcher.Constraint("Diameter", 20, Q("3 mm")))
sketch1.addConstraint(Sketcher.Constraint("Diameter", 26, Q("5 mm")))
sketch1.addConstraint(Sketcher.Constraint("DistanceX", 1, 1, 1, 2, Q("90 mm")))
sketch1.addConstraint(Sketcher.Constraint("DistanceX", 3, 1, 3, 2, Q("307 mm")))
sketch1.addConstraint(Sketcher.Constraint("DistanceX", 7, 2, 7, 1, Q("10 mm")))
sketch1.addConstraint(Sketcher.Constraint("DistanceX", 11, 2, 11, 1, Q("257 mm")))
sketch1.addConstraint(Sketcher.Constraint("DistanceX", 17, 1, 17, 2, Q("3 mm")))
sketch1.addConstraint(Sketcher.Constraint("DistanceX", 36, 2, 36, 1, Q("35 mm")))
sketch1.addConstraint(Sketcher.Constraint("DistanceX", 45, 2, 45, 1, Q("45 mm")))
sketch1.addConstraint(Sketcher.Constraint("DistanceY", 0, 2, 0, 1, Q("61 mm")))
sketch1.addConstraint(Sketcher.Constraint("DistanceY", 16, 1, 16, 2, Q("9.8 mm")))
sketch1.addConstraint(Sketcher.Constraint("DistanceY", 22, 1, 22, 2, Q("12.8 mm")))
sketch1.addConstraint(Sketcher.Constraint("DistanceX", 21, 3, -1, 1, Q("194 mm")))
sketch1.addConstraint(Sketcher.Constraint("DistanceX", -1, 1, 72, 3, Q("194 mm")))
sketch1.addConstraint(Sketcher.Constraint("DistanceY", -1, 1, 0, 2, Q("45 mm")))
sketch1.addConstraint(Sketcher.Constraint("DistanceX", 20, 3, -1, 1, Q("182.5 mm")))
sketch1.addConstraint(Sketcher.Constraint("DistanceY", -1, 1, 20, 3, Q("95.1 mm")))
sketch1.addConstraint(Sketcher.Constraint("DistanceY", -1, 1, 21, 3, Q("75.5 mm")))
sketch1.addConstraint(Sketcher.Constraint("DistanceX", 26, 3, -1, 1, Q("14.5 mm")))
sketch1.addConstraint(Sketcher.Constraint("DistanceY", -1, 1, 26, 3, Q("81.6 mm")))
sketch1.addConstraint(Sketcher.Constraint("DistanceX", 31, 3, -1, 1, Q("97.5 mm")))
sketch1.addConstraint(Sketcher.Constraint("DistanceY", -1, 1, 31, 3, Q("55.1 mm")))
sketch1.addConstraint(Sketcher.Constraint("DistanceY", -1, 1, 32, 3, Q("20.1 mm")))
sketch1.addConstraint(Sketcher.Constraint("DistanceY", -1, 1, 33, 3, Q("23.6 mm")))
sketch1.addConstraint(Sketcher.Constraint("DistanceX", -1, 1, 34, 3, Q("32.5 mm")))
sketch1.addConstraint(Sketcher.Constraint("DistanceX", -1, 1, 35, 3, Q("27.5 mm")))
sketch1.addConstraint(Sketcher.Constraint("DistanceX", -1, 1, 39, 3, Q("34.5 mm")))
sketch1.addConstraint(Sketcher.Constraint("DistanceX", -1, 1, 40, 3, Q("42.5 mm")))
sketch1.addConstraint(Sketcher.Constraint("DistanceY", -1, 1, 40, 3, Q("85.1 mm")))
sketch1.addConstraint(Sketcher.Constraint("DistanceY", -1, 1, 42, 3, Q("90.1 mm")))
sketch1.addConstraint(Sketcher.Constraint("DistanceY", -1, 1, 44, 3, Q("70.1 mm")))
sketch1.addConstraint(Sketcher.Constraint("DistanceY", -1, 1, 48, 3, Q("60.1 mm")))
sketch1.addConstraint(Sketcher.Constraint("DistanceY", -1, 1, 52, 3, Q("45.1 mm")))
sketch1.addConstraint(Sketcher.Constraint("DistanceY", -1, 1, 56, 3, Q("35.1 mm")))
sketch1.addConstraint(Sketcher.Constraint("DistanceX", -1, 1, 65, 3, Q("77.5 mm")))
sketch1.addConstraint(Sketcher.Constraint("DistanceX", -1, 1, 67, 3, Q("182.5 mm")))
sketch1.addConstraint(Sketcher.Constraint("DistanceY", -1, 1, 67, 3, Q("50.1 mm")))
sketch1.addConstraint(Sketcher.Constraint("DistanceY", -1, 1, 72, 3, Q("35.5 mm")))
sketch1.addConstraint(Sketcher.Constraint("DistanceX", 0, 2, -1, 1, Q("198.5 mm")))
sketch1.addConstraint(Sketcher.Constraint("DistanceX", 16, 2, -1, 1, Q("195.5 mm")))
sketch1.addConstraint(Sketcher.Constraint("DistanceY", -1, 1, 16, 2, Q("101.9 mm")))
sketch1.addConstraint(Sketcher.Constraint("DistanceX", 22, 2, -1, 1, Q("39.5 mm")))
sketch1.addConstraint(Sketcher.Constraint("DistanceY", -1, 1, 22, 2, Q("95.9 mm")))
sketch1.addConstraint(Sketcher.Constraint("DistanceY", -1, 1, 27, 2, Q("58.9 mm")))
sketch1.addConstraint(Sketcher.Constraint("DistanceX", -1, 1, 68, 2, Q("192.5 mm")))
sketch1.addConstraint(Sketcher.Constraint("DistanceY", -1, 1, 68, 2, Q("56.9 mm")))
sketch1.addConstraint(Sketcher.Constraint("DistanceY", -1, 1, 73, 2, Q("23.9 mm")))
pad1 = body.newObject("PartDesign::Pad", "Pad")
pad1.Profile = sketch1
pad1.Length = 3
pad1.Reversed = True
doc.recompute()

fillet = body.newObject("PartDesign::Fillet", "Fillet")
fillet.Base = (pad1, edges_at(pad1, [(-198.5, 45, -18), (198.5, 10, -18), (198.5, 61, -18)]))
fillet.Radius = 3
doc.recompute()

fillet2 = body.newObject("PartDesign::Fillet", "Fillet001")
fillet2.Base = (fillet, edges_at(fillet, [(-108.5, 45, -18), (-108.5, 10, -18), (108.5, 61, -18)]))
fillet2.Radius = 10

doc.recompute()
